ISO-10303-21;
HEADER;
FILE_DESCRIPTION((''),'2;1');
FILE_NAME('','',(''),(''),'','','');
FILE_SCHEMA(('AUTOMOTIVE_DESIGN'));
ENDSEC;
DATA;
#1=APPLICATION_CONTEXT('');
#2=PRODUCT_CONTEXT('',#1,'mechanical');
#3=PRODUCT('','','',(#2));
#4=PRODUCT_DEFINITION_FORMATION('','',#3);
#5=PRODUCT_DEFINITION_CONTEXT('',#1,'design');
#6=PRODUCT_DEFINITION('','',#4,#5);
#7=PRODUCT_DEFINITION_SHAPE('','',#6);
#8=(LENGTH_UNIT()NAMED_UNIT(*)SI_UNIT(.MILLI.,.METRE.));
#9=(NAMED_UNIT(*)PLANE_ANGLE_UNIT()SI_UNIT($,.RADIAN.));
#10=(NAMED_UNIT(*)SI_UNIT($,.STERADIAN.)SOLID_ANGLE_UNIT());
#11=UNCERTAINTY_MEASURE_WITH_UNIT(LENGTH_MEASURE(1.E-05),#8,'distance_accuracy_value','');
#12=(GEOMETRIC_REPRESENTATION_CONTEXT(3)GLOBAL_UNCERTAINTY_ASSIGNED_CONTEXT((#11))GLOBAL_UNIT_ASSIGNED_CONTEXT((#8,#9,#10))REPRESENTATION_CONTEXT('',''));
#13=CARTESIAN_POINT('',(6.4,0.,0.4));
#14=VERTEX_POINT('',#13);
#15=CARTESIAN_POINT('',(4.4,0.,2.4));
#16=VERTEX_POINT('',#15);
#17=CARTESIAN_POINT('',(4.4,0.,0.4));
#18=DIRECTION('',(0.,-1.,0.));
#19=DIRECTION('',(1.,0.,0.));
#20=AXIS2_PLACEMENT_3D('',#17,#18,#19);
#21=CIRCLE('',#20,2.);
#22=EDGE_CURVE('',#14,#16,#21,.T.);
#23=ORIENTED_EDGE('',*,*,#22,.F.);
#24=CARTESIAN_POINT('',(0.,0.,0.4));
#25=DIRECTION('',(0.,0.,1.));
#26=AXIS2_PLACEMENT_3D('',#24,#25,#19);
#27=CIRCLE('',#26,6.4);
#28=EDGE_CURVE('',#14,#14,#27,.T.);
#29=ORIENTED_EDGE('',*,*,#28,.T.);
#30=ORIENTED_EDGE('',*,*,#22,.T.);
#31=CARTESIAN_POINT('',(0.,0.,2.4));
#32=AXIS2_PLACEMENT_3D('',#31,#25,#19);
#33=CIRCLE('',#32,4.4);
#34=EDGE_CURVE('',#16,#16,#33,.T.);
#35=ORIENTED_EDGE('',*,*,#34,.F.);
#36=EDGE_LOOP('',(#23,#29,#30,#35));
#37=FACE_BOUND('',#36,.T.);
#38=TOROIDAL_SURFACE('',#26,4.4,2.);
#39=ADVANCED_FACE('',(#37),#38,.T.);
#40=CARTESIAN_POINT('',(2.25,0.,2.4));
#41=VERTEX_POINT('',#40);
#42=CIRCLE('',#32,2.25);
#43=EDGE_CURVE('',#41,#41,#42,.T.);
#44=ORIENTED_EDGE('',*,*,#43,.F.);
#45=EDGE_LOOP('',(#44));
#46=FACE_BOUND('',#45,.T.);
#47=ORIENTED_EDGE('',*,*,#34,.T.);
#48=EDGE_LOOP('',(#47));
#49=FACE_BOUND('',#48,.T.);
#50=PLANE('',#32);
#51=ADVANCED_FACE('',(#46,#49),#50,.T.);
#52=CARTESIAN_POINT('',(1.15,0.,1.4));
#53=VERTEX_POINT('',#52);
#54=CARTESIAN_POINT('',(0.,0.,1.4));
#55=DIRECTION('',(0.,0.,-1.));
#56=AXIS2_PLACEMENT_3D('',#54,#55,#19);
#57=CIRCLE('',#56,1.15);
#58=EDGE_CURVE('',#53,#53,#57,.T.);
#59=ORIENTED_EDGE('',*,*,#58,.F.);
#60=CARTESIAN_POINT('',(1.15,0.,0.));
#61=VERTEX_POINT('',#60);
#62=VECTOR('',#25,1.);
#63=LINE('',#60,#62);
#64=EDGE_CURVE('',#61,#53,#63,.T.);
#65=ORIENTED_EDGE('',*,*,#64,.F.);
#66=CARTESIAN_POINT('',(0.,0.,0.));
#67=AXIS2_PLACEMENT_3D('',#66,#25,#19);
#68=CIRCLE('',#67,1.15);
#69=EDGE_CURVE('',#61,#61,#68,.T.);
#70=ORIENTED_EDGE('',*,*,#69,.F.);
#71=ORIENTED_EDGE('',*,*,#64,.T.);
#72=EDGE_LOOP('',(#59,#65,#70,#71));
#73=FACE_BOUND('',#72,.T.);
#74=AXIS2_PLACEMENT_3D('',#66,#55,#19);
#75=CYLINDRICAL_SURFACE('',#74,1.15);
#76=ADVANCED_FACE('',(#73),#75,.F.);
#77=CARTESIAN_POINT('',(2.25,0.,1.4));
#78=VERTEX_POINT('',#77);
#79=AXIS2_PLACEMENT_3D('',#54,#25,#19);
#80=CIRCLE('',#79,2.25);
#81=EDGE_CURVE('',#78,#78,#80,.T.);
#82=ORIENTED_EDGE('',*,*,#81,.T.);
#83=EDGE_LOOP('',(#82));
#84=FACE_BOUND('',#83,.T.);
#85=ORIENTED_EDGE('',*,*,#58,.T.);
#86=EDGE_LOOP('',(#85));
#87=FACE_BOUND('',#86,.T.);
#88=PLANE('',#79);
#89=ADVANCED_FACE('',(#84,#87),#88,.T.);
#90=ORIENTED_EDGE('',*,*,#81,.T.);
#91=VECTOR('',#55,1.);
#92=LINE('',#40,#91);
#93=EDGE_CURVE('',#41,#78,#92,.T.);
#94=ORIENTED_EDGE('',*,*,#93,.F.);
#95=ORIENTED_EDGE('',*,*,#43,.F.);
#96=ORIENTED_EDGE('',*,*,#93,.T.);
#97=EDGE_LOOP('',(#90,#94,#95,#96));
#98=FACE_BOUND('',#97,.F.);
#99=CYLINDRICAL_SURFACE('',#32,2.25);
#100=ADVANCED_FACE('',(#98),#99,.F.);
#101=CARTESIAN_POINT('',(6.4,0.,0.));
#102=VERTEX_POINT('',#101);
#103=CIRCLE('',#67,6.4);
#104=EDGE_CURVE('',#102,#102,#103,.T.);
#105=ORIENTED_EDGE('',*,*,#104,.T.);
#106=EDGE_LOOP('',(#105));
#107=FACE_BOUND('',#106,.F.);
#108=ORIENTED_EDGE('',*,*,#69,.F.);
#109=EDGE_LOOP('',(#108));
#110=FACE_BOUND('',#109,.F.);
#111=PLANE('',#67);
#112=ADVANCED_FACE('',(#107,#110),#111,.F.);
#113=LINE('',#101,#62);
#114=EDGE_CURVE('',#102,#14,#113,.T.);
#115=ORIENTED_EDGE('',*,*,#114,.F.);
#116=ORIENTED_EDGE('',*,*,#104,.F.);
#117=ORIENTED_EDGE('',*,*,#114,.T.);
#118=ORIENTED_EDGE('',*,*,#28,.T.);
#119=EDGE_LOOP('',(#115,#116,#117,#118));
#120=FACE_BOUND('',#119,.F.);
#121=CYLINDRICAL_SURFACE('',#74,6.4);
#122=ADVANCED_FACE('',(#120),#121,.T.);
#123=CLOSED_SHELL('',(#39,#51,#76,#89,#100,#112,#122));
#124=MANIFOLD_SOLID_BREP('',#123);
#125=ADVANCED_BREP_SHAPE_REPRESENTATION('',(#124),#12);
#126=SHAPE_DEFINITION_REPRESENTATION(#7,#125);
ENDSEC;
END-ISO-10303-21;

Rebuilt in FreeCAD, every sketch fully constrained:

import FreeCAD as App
import Part
import Sketcher

V = App.Vector


def edges_at(feature, points):
    """Names of the edges that pass closest to the given points."""
    edges = feature.Shape.Edges
    near = lambda p: min(range(len(edges)), key=lambda i: edges[i].distToShape(Part.Vertex(*p))[0])
    return sorted({f"Edge{near(p) + 1}" for p in points})

doc = App.newDocument("Part")
body = doc.addObject("PartDesign::Body", "Body")

sketch1 = body.newObject("Sketcher::SketchObject", "Sketch")
sketch1.AttachmentSupport = (doc.getObject("XY_Plane"), [""])
sketch1.MapMode = "FlatFace"
sketch1.addGeometry(Part.Circle(V(0, 0, 0), V(0, 0, 1), 6.4), False)
sketch1.addGeometry(Part.Circle(V(0, 0, 0), V(0, 0, 1), 1.1), False)
sketch1.addConstraint(Sketcher.Constraint("Coincident", 0, 3, -1, 1))
sketch1.addConstraint(Sketcher.Constraint("Coincident", 1, 3, -1, 1))
sketch1.addConstraint(Sketcher.Constraint("Diameter", 0, 12.8))
sketch1.addConstraint(Sketcher.Constraint("Diameter", 1, 2.3))
pad1 = body.newObject("PartDesign::Pad", "Pad")
pad1.Profile = sketch1
pad1.Length = 2.4

sketch2 = body.newObject("Sketcher::SketchObject", "Sketch001")
sketch2.AttachmentSupport = (doc.getObject("XY_Plane"), [""])
sketch2.MapMode = "FlatFace"
sketch2.AttachmentOffset = App.Placement(V(0, 0, 2.4), App.Rotation())
sketch2.addGeometry(Part.Circle(V(0, 0, 0), V(0, 0, 1), 2.2), False)
sketch2.addConstraint(Sketcher.Constraint("Coincident", 0, 3, -1, 1))
sketch2.addConstraint(Sketcher.Constraint("Diameter", 0, 4.5))
pocket1 = body.newObject("PartDesign::Pocket", "Pocket")
pocket1.Profile = sketch2
pocket1.Length = 1
doc.recompute()

fillet = body.newObject("PartDesign::Fillet", "Fillet")
fillet.Base = (pocket1, edges_at(pocket1, [(-6.4, 0, 2.4)]))
fillet.Radius = 2

doc.recompute()
